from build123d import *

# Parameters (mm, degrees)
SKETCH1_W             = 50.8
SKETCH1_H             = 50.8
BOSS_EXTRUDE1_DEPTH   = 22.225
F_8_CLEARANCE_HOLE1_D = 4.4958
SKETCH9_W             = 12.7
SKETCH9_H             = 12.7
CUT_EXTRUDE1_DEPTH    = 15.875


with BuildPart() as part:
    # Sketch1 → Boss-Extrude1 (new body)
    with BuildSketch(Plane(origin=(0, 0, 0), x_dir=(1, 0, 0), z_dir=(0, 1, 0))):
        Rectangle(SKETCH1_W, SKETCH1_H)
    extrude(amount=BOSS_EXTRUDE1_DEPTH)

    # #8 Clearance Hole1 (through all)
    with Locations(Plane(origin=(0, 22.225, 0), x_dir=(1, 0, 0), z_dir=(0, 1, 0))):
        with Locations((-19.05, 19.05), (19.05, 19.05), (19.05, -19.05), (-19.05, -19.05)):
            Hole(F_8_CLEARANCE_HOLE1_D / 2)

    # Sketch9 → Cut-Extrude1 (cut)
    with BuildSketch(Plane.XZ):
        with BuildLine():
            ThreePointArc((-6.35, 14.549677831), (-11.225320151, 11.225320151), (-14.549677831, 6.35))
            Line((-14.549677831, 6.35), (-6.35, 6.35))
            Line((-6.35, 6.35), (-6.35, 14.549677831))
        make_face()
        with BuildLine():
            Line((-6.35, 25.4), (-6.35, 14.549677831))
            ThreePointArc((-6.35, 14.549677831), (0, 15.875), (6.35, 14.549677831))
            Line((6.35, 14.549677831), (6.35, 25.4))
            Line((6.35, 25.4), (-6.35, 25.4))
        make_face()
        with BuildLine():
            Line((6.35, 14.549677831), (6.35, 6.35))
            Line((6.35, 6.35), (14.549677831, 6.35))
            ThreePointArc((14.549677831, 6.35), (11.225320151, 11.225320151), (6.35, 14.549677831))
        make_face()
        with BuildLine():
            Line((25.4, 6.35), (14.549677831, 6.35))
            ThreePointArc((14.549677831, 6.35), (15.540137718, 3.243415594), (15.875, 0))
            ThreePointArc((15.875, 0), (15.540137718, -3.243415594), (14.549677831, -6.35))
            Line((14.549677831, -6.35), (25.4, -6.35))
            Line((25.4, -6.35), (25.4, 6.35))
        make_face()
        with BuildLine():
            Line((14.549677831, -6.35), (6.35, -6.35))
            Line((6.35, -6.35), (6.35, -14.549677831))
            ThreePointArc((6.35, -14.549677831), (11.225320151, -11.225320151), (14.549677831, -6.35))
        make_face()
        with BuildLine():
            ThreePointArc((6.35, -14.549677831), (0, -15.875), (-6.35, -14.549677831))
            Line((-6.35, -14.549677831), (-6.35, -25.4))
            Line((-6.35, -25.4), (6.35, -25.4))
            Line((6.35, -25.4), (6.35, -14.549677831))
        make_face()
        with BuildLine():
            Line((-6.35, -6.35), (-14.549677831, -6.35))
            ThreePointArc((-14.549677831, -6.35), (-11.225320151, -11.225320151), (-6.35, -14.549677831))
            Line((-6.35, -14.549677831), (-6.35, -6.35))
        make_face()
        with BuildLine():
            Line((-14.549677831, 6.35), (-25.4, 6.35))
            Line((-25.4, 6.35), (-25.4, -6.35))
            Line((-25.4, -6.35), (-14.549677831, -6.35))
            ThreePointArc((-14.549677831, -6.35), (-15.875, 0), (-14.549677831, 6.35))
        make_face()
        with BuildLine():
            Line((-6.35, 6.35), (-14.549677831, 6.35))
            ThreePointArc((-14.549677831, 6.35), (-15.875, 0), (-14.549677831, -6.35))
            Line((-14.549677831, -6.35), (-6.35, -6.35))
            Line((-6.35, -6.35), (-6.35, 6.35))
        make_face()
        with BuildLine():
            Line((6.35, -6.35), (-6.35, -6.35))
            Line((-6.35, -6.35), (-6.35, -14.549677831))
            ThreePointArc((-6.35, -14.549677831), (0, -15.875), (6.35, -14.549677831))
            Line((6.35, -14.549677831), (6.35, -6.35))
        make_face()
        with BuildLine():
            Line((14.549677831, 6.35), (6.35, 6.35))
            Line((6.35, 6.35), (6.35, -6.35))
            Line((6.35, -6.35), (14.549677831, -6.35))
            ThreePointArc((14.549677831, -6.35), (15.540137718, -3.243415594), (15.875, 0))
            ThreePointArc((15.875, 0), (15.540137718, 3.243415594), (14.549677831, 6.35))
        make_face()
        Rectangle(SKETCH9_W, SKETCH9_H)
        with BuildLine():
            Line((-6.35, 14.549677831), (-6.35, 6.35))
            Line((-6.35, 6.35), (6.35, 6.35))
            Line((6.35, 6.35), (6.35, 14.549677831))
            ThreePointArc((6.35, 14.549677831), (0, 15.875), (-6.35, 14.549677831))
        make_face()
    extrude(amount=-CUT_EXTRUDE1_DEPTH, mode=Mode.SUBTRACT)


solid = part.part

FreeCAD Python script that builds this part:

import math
import FreeCAD as App
import Part
import Sketcher
from FreeCAD import Vector
Q = App.Units.Quantity

doc = App.newDocument("Part")
body = doc.addObject("PartDesign::Body", "Body")

# Sketch on XZ plane
sketch1 = doc.addObject("Sketcher::SketchObject", "Sketch")
body.addObject(sketch1)
sketch1.AttachmentSupport = (doc.XZ_Plane, [""])
sketch1.MapMode = "FlatFace"
sketch1.addGeometry([
    Part.LineSegment(Vector(-25.4, -25.4, 0), Vector(-25.4, 25.4, 0)),
    Part.LineSegment(Vector(-25.4, 25.4, 0), Vector(25.4, 25.4, 0)),
    Part.LineSegment(Vector(25.4, 25.4, 0), Vector(25.4, -25.4, 0)),
    Part.LineSegment(Vector(25.4, -25.4, 0), Vector(-25.4, -25.4, 0)),
], False)
sketch1.addConstraint([
    Sketcher.Constraint("Coincident", 0, 2, 1, 1),
    Sketcher.Constraint("Coincident", 1, 2, 2, 1),
    Sketcher.Constraint("Coincident", 2, 2, 3, 1),
    Sketcher.Constraint("Coincident", 3, 2, 0, 1),
    Sketcher.Constraint("Vertical", 0),
    Sketcher.Constraint("Horizontal", 1),
    Sketcher.Constraint("Vertical", 2),
    Sketcher.Constraint("Horizontal", 3),
    Sketcher.Constraint("Symmetric", 0, 2, 2, 2, -1, 1),
    Sketcher.Constraint("Equal", 3, 0),
    Sketcher.Constraint("DistanceX", 1, 1, 1, 2, Q("2 in")),
])
pad1 = doc.addObject("PartDesign::Pad", "Pad")
body.addObject(pad1)
pad1.Profile = sketch1
pad1.Length = Q("0.875 in")
pad1.Reversed = True

# Sketch on XZ plane
sketch2 = doc.addObject("Sketcher::SketchObject", "Sketch001")
body.addObject(sketch2)
sketch2.AttachmentSupport = (doc.XZ_Plane, [""])
sketch2.MapMode = "FlatFace"
sketch2.AttachmentOffset = App.Placement(Vector(0, 0, -0.875 * 25.4), App.Rotation())
sketch2.addGeometry([
    Part.Circle(Vector(-19.05, -19.05, 0), Vector(0, 0, 1), 2.2479),
    Part.Circle(Vector(19.05, -19.05, 0), Vector(0, 0, 1), 2.2479),
    Part.Circle(Vector(19.05, 19.05, 0), Vector(0, 0, 1), 2.2479),
    Part.Circle(Vector(-19.05, 19.05, 0), Vector(0, 0, 1), 2.2479),
], False)
sketch2.addConstraint([
    Sketcher.Constraint("Equal", 0, 1),
    Sketcher.Constraint("Equal", 1, 2),
    Sketcher.Constraint("Equal", 2, 3),
    Sketcher.Constraint("Symmetric", 0, 3, 2, 3, -1, 1),
    Sketcher.Constraint("Symmetric", 1, 3, 3, 3, -1, 1),
    Sketcher.Constraint("Symmetric", 0, 3, 1, 3, -2),
    Sketcher.Constraint("Diameter", 0, Q("0.177 in")),
    Sketcher.Constraint("DistanceX", 0, 3, 1, 3, Q("1.5 in")),
    Sketcher.Constraint("DistanceY", 1, 3, 2, 3, Q("1.5 in")),
])
doc.recompute()
hole = doc.addObject("PartDesign::Hole", "Hole")
body.addObject(hole)
hole.Profile = sketch2
hole.ThreadType = "None"
hole.Diameter = Q("0.177 in")
hole.DepthType = "ThroughAll"
hole.Reversed = True

# Sketch on XZ plane
sketch3 = doc.addObject("Sketcher::SketchObject", "Sketch002")
body.addObject(sketch3)
sketch3.AttachmentSupport = (doc.XZ_Plane, [""])
sketch3.MapMode = "FlatFace"
sketch3.addGeometry([
    Part.ArcOfCircle(Part.Circle(Vector(0, 0, 0), Vector(0, 0, 1), 15.875), math.radians(113.578178), math.radians(156.421822)),  # 0
    Part.LineSegment(Vector(-14.549678, 6.35, 0), Vector(-25.4, 6.35, 0)),  # 1
    Part.LineSegment(Vector(-25.4, 6.35, 0), Vector(-25.4, -6.35, 0)),  # 2
    Part.LineSegment(Vector(-25.4, -6.35, 0), Vector(-14.549678, -6.35, 0)),  # 3
    Part.ArcOfCircle(Part.Circle(Vector(0, 0, 0), Vector(0, 0, 1), 15.875), math.radians(-156.421822), math.radians(-113.578178)),  # 4
    Part.LineSegment(Vector(-6.35, -14.549678, 0), Vector(-6.35, -25.4, 0)),  # 5
    Part.LineSegment(Vector(-6.35, -25.4, 0), Vector(6.35, -25.4, 0)),  # 6
    Part.LineSegment(Vector(6.35, -25.4, 0), Vector(6.35, -14.549678, 0)),  # 7
    Part.ArcOfCircle(Part.Circle(Vector(0, 0, 0), Vector(0, 0, 1), 15.875), math.radians(-66.421822), math.radians(-23.578178)),  # 8
    Part.LineSegment(Vector(14.549678, -6.35, 0), Vector(25.4, -6.35, 0)),  # 9
    Part.LineSegment(Vector(25.4, -6.35, 0), Vector(25.4, 6.35, 0)),  # 10
    Part.LineSegment(Vector(25.4, 6.35, 0), Vector(14.549678, 6.35, 0)),  # 11
    Part.ArcOfCircle(Part.Circle(Vector(0, 0, 0), Vector(0, 0, 1), 15.875), math.radians(23.578178), math.radians(66.421822)),  # 12
    Part.LineSegment(Vector(6.35, 14.549678, 0), Vector(6.35, 25.4, 0)),  # 13
    Part.LineSegment(Vector(6.35, 25.4, 0), Vector(-6.35, 25.4, 0)),  # 14
    Part.LineSegment(Vector(-6.35, 25.4, 0), Vector(-6.35, 14.549678, 0)),  # 15
], False)
sketch3.addConstraint([
    Sketcher.Constraint("Coincident", 0, 2, 1, 1),
    Sketcher.Constraint("Coincident", 1, 2, 2, 1),
    Sketcher.Constraint("Coincident", 2, 2, 3, 1),
    Sketcher.Constraint("Coincident", 3, 2, 4, 1),
    Sketcher.Constraint("Coincident", 4, 2, 5, 1),
    Sketcher.Constraint("Coincident", 5, 2, 6, 1),
    Sketcher.Constraint("Coincident", 6, 2, 7, 1),
    Sketcher.Constraint("Coincident", 7, 2, 8, 1),
    Sketcher.Constraint("Coincident", 8, 2, 9, 1),
    Sketcher.Constraint("Coincident", 9, 2, 10, 1),
    Sketcher.Constraint("Coincident", 10, 2, 11, 1),
    Sketcher.Constraint("Coincident", 11, 2, 12, 1),
    Sketcher.Constraint("Coincident", 12, 2, 13, 1),
    Sketcher.Constraint("Coincident", 13, 2, 14, 1),
    Sketcher.Constraint("Coincident", 14, 2, 15, 1),
    Sketcher.Constraint("Coincident", 15, 2, 0, 1),
    Sketcher.Constraint("Horizontal", 1),
    Sketcher.Constraint("Vertical", 2),
    Sketcher.Constraint("Horizontal", 3),
    Sketcher.Constraint("Vertical", 5),
    Sketcher.Constraint("Horizontal", 6),
    Sketcher.Constraint("Vertical", 7),
    Sketcher.Constraint("Horizontal", 9),
    Sketcher.Constraint("Vertical", 10),
    Sketcher.Constraint("Horizontal", 11),
    Sketcher.Constraint("Vertical", 13),
    Sketcher.Constraint("Horizontal", 14),
    Sketcher.Constraint("Vertical", 15),
    Sketcher.Constraint("Coincident", 0, 3, -1, 1),
    Sketcher.Constraint("Coincident", 4, 3, -1, 1),
    Sketcher.Constraint("Coincident", 8, 3, -1, 1),
    Sketcher.Constraint("Coincident", 12, 3, -1, 1),
    Sketcher.Constraint("Equal", 0, 4),
    Sketcher.Constraint("Equal", 4, 8),
    Sketcher.Constraint("Equal", 8, 12),
    Sketcher.Constraint("Symmetric", 1, 2, 9, 2, -1, 1),
    Sketcher.Constraint("Symmetric", 5, 2, 13, 2, -1, 1),
    Sketcher.Constraint("Horizontal", 4, 2, 7, 2),
    Sketcher.Constraint("Horizontal", 3, 2, 8, 2),
    Sketcher.Constraint("Horizontal", 1, 2, 10, 2),
    Sketcher.Constraint("Horizontal", 12, 2, 15, 2),
    Sketcher.Constraint("Equal", 14, 2),
    Sketcher.Constraint("Equal", 11, 5),
    Sketcher.Constraint("DistanceX", 6, 1, 6, 2, Q("0.5 in")),
    Sketcher.Constraint("DistanceX", 1, 2, -1, 1, Q("1 in")),
    Sketcher.Constraint("Radius", 0, Q("0.625 in")),
])
pocket1 = doc.addObject("PartDesign::Pocket", "Pocket")
body.addObject(pocket1)
pocket1.Profile = sketch3
pocket1.Length = Q("0.625 in")

doc.recompute()
